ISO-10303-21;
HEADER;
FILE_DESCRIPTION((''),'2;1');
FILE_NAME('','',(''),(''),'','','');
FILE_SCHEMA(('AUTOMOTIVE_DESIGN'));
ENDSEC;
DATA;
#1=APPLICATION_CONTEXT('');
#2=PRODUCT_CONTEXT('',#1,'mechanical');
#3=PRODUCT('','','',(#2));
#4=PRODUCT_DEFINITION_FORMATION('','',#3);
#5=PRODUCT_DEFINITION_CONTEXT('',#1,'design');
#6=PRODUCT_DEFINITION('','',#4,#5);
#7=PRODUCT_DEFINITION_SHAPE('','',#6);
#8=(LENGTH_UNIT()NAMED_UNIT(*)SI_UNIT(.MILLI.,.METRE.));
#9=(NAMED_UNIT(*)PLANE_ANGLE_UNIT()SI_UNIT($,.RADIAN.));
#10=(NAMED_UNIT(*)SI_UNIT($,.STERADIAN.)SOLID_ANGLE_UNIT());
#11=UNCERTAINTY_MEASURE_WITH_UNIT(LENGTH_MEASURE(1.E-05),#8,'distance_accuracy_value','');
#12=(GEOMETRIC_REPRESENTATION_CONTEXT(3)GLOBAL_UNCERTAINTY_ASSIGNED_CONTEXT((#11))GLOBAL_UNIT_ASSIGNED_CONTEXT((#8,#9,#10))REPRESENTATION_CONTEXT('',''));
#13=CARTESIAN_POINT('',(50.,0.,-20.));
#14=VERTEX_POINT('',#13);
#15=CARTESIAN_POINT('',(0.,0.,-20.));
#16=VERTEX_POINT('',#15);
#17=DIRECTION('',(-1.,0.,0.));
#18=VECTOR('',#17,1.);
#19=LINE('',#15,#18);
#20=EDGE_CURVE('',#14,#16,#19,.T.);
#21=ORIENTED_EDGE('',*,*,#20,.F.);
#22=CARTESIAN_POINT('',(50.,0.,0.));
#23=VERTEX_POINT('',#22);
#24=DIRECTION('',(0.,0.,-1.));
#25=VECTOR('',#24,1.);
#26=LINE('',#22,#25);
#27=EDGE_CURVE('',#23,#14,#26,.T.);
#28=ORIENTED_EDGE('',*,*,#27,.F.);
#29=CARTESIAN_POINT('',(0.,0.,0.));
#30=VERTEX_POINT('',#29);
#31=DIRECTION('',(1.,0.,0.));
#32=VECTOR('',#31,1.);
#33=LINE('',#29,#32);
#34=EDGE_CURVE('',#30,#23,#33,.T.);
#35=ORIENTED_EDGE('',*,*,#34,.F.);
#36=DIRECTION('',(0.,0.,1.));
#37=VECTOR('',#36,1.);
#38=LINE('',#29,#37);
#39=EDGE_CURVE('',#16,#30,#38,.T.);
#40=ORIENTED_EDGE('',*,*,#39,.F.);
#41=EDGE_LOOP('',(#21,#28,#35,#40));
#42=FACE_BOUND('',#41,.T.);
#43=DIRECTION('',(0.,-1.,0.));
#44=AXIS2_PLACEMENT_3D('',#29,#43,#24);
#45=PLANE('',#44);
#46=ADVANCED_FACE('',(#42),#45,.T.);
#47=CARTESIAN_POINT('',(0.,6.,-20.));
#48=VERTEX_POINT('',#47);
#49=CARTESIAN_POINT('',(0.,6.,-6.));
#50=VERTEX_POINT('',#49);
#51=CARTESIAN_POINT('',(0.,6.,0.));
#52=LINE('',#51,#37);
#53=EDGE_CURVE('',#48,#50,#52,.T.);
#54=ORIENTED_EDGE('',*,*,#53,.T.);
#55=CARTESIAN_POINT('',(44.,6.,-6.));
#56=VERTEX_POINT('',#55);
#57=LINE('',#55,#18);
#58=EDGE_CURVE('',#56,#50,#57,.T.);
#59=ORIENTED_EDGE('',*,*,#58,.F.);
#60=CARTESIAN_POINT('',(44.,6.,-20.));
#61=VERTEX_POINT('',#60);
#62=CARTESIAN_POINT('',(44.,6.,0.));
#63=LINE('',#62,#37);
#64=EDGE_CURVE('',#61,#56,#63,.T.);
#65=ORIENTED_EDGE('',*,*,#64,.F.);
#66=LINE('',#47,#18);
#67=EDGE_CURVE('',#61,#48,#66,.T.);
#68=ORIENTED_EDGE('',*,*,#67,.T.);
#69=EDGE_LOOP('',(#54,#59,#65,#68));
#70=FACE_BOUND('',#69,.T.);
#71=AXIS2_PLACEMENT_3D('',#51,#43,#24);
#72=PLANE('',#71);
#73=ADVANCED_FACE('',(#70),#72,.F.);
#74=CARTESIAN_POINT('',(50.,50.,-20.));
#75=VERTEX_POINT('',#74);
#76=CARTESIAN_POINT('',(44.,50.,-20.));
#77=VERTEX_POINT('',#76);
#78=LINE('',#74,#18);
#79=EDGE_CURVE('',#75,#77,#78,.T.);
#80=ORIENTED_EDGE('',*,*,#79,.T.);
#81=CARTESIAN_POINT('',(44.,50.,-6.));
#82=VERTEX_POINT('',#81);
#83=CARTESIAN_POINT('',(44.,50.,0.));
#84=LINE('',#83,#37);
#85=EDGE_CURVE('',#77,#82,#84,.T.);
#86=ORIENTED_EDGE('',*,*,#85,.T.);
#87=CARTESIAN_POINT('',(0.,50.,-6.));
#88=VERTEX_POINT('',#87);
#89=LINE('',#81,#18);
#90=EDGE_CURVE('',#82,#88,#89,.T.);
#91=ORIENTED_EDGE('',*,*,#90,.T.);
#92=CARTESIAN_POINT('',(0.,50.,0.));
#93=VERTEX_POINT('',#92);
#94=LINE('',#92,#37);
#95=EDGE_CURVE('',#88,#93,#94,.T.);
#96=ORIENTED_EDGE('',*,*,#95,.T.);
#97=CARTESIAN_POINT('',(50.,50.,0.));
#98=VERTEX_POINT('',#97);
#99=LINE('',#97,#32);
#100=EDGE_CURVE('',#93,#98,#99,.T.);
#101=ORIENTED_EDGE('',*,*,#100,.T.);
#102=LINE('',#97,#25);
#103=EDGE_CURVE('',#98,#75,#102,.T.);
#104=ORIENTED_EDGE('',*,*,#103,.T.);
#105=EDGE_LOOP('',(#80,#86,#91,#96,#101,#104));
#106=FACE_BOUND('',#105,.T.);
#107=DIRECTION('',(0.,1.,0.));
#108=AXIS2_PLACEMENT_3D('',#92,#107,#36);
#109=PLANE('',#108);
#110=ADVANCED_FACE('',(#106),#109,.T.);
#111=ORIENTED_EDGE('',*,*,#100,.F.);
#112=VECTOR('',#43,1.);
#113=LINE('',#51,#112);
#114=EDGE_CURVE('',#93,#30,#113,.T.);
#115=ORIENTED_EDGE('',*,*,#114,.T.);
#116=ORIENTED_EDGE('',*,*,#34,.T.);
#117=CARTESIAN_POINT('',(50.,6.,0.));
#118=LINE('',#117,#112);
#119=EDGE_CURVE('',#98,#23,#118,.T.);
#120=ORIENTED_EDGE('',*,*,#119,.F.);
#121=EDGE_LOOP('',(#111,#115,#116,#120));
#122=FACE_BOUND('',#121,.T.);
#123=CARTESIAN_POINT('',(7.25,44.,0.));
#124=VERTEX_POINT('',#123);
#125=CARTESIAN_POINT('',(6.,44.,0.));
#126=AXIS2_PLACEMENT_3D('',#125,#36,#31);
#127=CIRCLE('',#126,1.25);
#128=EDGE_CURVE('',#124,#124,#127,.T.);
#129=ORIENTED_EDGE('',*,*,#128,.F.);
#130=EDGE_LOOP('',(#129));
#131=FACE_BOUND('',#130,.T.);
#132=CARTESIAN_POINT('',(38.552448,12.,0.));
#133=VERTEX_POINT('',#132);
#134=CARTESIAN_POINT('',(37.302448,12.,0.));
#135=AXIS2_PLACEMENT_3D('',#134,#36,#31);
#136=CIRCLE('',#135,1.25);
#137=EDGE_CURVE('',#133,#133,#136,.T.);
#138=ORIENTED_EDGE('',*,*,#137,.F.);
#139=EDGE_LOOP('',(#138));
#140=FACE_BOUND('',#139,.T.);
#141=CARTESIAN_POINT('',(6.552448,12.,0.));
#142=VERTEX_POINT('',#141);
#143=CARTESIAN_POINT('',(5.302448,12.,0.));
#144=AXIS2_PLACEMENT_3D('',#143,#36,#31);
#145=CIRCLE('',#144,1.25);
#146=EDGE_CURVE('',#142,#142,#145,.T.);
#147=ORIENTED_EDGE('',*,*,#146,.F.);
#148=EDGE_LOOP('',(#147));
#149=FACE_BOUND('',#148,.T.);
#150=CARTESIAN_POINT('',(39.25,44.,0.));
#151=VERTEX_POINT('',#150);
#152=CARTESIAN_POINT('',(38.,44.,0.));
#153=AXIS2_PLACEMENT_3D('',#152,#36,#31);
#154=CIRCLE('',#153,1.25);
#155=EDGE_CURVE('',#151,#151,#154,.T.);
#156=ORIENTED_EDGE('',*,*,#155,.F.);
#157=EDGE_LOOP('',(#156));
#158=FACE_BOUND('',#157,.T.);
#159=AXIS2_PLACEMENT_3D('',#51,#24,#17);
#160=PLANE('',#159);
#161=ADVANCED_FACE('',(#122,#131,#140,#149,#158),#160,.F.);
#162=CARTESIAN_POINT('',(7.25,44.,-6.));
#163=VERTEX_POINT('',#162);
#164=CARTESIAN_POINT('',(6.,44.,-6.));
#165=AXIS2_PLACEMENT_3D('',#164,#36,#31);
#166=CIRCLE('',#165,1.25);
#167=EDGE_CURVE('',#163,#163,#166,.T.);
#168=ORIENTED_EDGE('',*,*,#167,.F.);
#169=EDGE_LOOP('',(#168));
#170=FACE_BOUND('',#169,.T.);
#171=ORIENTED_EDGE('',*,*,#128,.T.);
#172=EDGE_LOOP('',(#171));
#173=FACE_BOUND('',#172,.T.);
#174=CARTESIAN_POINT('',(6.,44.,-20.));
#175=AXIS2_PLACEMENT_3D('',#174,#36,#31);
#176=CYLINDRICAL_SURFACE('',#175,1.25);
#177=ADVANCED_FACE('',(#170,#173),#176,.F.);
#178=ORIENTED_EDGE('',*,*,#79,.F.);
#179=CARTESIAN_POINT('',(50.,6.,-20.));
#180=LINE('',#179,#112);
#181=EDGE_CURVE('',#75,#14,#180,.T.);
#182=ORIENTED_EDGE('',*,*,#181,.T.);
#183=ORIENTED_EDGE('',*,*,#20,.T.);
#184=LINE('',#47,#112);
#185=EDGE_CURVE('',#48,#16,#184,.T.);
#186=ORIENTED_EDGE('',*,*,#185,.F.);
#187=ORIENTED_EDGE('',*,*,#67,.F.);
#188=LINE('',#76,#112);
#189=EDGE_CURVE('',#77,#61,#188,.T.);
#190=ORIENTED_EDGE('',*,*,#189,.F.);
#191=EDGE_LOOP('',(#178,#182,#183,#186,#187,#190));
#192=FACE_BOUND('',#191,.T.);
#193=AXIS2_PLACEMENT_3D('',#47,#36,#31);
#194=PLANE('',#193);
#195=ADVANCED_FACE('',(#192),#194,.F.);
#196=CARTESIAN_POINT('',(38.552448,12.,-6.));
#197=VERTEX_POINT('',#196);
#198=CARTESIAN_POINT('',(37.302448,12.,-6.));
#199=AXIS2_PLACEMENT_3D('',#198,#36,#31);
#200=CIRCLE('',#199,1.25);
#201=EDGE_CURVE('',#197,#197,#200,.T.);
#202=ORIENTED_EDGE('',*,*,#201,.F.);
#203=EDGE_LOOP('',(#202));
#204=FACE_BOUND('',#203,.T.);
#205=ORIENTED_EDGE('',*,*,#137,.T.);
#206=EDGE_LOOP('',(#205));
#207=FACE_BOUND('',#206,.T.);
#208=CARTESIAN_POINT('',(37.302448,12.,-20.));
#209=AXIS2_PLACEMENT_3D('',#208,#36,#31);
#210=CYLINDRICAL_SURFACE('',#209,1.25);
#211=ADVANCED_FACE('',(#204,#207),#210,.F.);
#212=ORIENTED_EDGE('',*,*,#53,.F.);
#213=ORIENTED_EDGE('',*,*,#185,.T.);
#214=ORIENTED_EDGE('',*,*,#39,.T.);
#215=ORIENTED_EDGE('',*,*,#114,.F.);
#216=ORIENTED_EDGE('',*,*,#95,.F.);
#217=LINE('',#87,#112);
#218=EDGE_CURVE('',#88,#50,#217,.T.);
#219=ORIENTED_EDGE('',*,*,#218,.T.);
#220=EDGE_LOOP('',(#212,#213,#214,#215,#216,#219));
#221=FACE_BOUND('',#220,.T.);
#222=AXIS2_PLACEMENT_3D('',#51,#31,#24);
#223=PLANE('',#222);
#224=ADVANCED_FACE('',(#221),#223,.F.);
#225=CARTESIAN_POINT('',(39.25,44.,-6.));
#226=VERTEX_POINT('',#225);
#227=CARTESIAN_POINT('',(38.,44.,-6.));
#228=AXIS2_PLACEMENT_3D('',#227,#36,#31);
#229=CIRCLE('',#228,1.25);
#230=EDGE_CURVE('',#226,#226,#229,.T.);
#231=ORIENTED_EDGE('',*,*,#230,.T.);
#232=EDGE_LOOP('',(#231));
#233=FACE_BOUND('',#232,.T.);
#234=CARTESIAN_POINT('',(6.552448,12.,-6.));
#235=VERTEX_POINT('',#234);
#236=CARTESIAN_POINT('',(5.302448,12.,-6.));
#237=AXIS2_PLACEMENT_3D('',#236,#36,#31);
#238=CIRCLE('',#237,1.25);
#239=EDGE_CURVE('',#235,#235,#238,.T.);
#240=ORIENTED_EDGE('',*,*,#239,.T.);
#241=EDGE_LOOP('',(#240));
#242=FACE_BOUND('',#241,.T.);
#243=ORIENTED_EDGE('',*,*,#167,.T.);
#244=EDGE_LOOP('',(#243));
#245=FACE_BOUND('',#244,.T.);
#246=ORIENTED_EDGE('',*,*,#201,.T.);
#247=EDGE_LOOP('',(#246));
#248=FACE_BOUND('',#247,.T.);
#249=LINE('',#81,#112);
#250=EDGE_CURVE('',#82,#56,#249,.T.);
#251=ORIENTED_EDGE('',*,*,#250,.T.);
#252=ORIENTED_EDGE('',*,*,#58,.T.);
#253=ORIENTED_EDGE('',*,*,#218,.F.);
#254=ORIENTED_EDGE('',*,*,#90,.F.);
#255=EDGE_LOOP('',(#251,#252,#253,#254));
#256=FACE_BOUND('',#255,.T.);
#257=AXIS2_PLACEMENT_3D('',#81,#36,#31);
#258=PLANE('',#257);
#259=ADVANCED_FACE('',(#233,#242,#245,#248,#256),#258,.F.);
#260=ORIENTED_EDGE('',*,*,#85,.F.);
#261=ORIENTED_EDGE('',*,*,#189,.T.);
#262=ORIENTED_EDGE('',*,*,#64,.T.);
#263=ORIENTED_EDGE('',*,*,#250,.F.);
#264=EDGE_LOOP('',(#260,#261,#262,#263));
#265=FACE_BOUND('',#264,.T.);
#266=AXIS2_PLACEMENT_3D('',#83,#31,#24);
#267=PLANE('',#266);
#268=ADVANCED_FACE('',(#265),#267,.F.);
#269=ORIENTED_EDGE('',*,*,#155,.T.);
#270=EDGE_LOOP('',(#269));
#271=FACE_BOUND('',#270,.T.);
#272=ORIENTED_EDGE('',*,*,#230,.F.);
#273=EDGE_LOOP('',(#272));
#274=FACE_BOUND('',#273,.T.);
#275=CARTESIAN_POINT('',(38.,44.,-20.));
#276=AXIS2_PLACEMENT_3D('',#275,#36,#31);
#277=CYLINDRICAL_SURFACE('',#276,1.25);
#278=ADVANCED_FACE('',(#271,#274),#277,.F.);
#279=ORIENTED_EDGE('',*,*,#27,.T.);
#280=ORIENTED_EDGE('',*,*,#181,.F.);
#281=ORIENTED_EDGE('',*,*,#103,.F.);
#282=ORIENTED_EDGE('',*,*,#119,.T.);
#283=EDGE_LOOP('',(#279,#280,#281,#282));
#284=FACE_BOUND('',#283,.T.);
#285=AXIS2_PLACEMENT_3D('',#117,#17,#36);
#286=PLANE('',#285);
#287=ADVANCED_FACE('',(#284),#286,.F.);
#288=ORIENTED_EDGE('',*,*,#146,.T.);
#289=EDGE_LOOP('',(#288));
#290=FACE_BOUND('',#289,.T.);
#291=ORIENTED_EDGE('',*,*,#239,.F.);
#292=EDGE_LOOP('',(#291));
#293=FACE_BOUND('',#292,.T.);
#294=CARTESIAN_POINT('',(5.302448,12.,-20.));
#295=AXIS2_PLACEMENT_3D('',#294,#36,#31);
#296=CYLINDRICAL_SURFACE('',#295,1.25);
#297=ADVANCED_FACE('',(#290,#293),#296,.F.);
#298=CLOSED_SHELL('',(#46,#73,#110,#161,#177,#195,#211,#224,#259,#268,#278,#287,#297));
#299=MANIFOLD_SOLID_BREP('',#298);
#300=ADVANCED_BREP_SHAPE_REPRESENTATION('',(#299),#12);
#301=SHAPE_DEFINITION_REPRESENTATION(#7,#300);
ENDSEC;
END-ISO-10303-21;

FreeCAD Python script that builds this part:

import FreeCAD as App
import Part
import Sketcher


def add_polygon(sketch, points):
    """Adds a closed chain of lines whose ends are joined by coincident constraints."""
    first, n = sketch.GeometryCount, len(points)
    for a, b in zip(points, points[1:] + points[:1]):
        sketch.addGeometry(Part.LineSegment(App.Vector(*a, 0), App.Vector(*b, 0)), False)
    for i in range(n):
        sketch.addConstraint(Sketcher.Constraint("Coincident", first + i, 2, first + (i + 1) % n, 1))

doc = App.newDocument("Part")
body = doc.addObject("PartDesign::Body", "Body")

sketch1 = doc.addObject("Sketcher::SketchObject", "Sketch")
body.addObject(sketch1)
sketch1.AttachmentSupport = (doc.XZ_Plane, [""])
sketch1.MapMode = "FlatFace"
add_polygon(sketch1, [(0, -20), (0, 0), (50, 0), (50, -20)])
sketch1.addConstraint(Sketcher.Constraint("Vertical", 0))
sketch1.addConstraint(Sketcher.Constraint("Horizontal", 1))
sketch1.addConstraint(Sketcher.Constraint("Vertical", 2))
sketch1.addConstraint(Sketcher.Constraint("Horizontal", 3))
sketch1.addConstraint(Sketcher.Constraint("Coincident", 0, 2, -1, 1))
sketch1.addConstraint(Sketcher.Constraint("DistanceX", 1, 1, 1, 2, 50.0))
sketch1.addConstraint(Sketcher.Constraint("DistanceY", 0, 1, 0, 2, 20.0))
pad1 = doc.addObject("PartDesign::Pad", "Pad")
body.addObject(pad1)
pad1.Profile = sketch1
pad1.Length = 6
pad1.Reversed = True

sketch2 = doc.addObject("Sketcher::SketchObject", "Sketch001")
body.addObject(sketch2)
sketch2.AttachmentSupport = (doc.XZ_Plane, [""])
sketch2.MapMode = "FlatFace"
sketch2.AttachmentOffset = App.Placement(App.Vector(0, 0, -6), App.Rotation())
add_polygon(sketch2, [(44, -20), (44, 0), (50, 0), (50, -20)])
sketch2.addConstraint(Sketcher.Constraint("Vertical", 0))
sketch2.addConstraint(Sketcher.Constraint("Horizontal", 1))
sketch2.addConstraint(Sketcher.Constraint("Vertical", 2))
sketch2.addConstraint(Sketcher.Constraint("Horizontal", 3))
sketch2.addConstraint(Sketcher.Constraint("PointOnObject", 0, 2, -1))
sketch2.addConstraint(Sketcher.Constraint("DistanceX", 1, 1, 1, 2, 6.0))
sketch2.addConstraint(Sketcher.Constraint("DistanceY", 0, 1, 0, 2, 20.0))
sketch2.addConstraint(Sketcher.Constraint("DistanceX", -1, 1, 0, 2, 44.0))
pad2 = doc.addObject("PartDesign::Pad", "Pad001")
body.addObject(pad2)
pad2.Profile = sketch2
pad2.Length = 44
pad2.Reversed = True

sketch3 = doc.addObject("Sketcher::SketchObject", "Sketch002")
body.addObject(sketch3)
sketch3.AttachmentSupport = (doc.XZ_Plane, [""])
sketch3.MapMode = "FlatFace"
sketch3.AttachmentOffset = App.Placement(App.Vector(0, 0, -6), App.Rotation())
add_polygon(sketch3, [(0, -6), (0, 0), (44, 0), (44, -6)])
sketch3.addConstraint(Sketcher.Constraint("Vertical", 0))
sketch3.addConstraint(Sketcher.Constraint("Horizontal", 1))
sketch3.addConstraint(Sketcher.Constraint("Vertical", 2))
sketch3.addConstraint(Sketcher.Constraint("Horizontal", 3))
sketch3.addConstraint(Sketcher.Constraint("Coincident", 0, 2, -1, 1))
sketch3.addConstraint(Sketcher.Constraint("DistanceX", 1, 1, 1, 2, 44.0))
sketch3.addConstraint(Sketcher.Constraint("DistanceY", 0, 1, 0, 2, 6.0))
pad3 = doc.addObject("PartDesign::Pad", "Pad002")
body.addObject(pad3)
pad3.Profile = sketch3
pad3.Length = 44
pad3.Reversed = True

sketch4 = doc.addObject("Sketcher::SketchObject", "Sketch003")
body.addObject(sketch4)
sketch4.AttachmentSupport = (doc.XY_Plane, [""])
sketch4.MapMode = "FlatFace"
sketch4.addGeometry(Part.Circle(App.Vector(6, 44, 0), App.Vector(0, 0, 1), 1.2), False)
sketch4.addGeometry(Part.Circle(App.Vector(38, 44, 0), App.Vector(0, 0, 1), 1.2), False)
sketch4.addGeometry(Part.Circle(App.Vector(5.3, 12, 0), App.Vector(0, 0, 1), 1.2), False)
sketch4.addGeometry(Part.Circle(App.Vector(37.3, 12, 0), App.Vector(0, 0, 1), 1.2), False)
sketch4.addConstraint(Sketcher.Constraint("Equal", 0, 1))
sketch4.addConstraint(Sketcher.Constraint("Equal", 1, 2))
sketch4.addConstraint(Sketcher.Constraint("Equal", 2, 3))
sketch4.addConstraint(Sketcher.Constraint("Horizontal", 0, 3, 1, 3))
sketch4.addConstraint(Sketcher.Constraint("Horizontal", 2, 3, 3, 3))
sketch4.addConstraint(Sketcher.Constraint("Diameter", 0, 2.5))
sketch4.addConstraint(Sketcher.Constraint("DistanceX", -1, 1, 0, 3, 6.0))
sketch4.addConstraint(Sketcher.Constraint("DistanceY", -1, 1, 0, 3, 44.0))
sketch4.addConstraint(Sketcher.Constraint("DistanceX", -1, 1, 1, 3, 38.0))
sketch4.addConstraint(Sketcher.Constraint("DistanceY", -1, 1, 2, 3, 12.0))
sketch4.addConstraint(Sketcher.Constraint("DistanceX", 2, 3, 3, 3, 32.0))
sketch4.addConstraint(Sketcher.Constraint("DistanceX", -1, 1, 2, 3, 5.302448))
pocket1 = doc.addObject("PartDesign::Pocket", "Pocket")
body.addObject(pocket1)
pocket1.Profile = sketch4
pocket1.Type = "ThroughAll"

doc.recompute()
